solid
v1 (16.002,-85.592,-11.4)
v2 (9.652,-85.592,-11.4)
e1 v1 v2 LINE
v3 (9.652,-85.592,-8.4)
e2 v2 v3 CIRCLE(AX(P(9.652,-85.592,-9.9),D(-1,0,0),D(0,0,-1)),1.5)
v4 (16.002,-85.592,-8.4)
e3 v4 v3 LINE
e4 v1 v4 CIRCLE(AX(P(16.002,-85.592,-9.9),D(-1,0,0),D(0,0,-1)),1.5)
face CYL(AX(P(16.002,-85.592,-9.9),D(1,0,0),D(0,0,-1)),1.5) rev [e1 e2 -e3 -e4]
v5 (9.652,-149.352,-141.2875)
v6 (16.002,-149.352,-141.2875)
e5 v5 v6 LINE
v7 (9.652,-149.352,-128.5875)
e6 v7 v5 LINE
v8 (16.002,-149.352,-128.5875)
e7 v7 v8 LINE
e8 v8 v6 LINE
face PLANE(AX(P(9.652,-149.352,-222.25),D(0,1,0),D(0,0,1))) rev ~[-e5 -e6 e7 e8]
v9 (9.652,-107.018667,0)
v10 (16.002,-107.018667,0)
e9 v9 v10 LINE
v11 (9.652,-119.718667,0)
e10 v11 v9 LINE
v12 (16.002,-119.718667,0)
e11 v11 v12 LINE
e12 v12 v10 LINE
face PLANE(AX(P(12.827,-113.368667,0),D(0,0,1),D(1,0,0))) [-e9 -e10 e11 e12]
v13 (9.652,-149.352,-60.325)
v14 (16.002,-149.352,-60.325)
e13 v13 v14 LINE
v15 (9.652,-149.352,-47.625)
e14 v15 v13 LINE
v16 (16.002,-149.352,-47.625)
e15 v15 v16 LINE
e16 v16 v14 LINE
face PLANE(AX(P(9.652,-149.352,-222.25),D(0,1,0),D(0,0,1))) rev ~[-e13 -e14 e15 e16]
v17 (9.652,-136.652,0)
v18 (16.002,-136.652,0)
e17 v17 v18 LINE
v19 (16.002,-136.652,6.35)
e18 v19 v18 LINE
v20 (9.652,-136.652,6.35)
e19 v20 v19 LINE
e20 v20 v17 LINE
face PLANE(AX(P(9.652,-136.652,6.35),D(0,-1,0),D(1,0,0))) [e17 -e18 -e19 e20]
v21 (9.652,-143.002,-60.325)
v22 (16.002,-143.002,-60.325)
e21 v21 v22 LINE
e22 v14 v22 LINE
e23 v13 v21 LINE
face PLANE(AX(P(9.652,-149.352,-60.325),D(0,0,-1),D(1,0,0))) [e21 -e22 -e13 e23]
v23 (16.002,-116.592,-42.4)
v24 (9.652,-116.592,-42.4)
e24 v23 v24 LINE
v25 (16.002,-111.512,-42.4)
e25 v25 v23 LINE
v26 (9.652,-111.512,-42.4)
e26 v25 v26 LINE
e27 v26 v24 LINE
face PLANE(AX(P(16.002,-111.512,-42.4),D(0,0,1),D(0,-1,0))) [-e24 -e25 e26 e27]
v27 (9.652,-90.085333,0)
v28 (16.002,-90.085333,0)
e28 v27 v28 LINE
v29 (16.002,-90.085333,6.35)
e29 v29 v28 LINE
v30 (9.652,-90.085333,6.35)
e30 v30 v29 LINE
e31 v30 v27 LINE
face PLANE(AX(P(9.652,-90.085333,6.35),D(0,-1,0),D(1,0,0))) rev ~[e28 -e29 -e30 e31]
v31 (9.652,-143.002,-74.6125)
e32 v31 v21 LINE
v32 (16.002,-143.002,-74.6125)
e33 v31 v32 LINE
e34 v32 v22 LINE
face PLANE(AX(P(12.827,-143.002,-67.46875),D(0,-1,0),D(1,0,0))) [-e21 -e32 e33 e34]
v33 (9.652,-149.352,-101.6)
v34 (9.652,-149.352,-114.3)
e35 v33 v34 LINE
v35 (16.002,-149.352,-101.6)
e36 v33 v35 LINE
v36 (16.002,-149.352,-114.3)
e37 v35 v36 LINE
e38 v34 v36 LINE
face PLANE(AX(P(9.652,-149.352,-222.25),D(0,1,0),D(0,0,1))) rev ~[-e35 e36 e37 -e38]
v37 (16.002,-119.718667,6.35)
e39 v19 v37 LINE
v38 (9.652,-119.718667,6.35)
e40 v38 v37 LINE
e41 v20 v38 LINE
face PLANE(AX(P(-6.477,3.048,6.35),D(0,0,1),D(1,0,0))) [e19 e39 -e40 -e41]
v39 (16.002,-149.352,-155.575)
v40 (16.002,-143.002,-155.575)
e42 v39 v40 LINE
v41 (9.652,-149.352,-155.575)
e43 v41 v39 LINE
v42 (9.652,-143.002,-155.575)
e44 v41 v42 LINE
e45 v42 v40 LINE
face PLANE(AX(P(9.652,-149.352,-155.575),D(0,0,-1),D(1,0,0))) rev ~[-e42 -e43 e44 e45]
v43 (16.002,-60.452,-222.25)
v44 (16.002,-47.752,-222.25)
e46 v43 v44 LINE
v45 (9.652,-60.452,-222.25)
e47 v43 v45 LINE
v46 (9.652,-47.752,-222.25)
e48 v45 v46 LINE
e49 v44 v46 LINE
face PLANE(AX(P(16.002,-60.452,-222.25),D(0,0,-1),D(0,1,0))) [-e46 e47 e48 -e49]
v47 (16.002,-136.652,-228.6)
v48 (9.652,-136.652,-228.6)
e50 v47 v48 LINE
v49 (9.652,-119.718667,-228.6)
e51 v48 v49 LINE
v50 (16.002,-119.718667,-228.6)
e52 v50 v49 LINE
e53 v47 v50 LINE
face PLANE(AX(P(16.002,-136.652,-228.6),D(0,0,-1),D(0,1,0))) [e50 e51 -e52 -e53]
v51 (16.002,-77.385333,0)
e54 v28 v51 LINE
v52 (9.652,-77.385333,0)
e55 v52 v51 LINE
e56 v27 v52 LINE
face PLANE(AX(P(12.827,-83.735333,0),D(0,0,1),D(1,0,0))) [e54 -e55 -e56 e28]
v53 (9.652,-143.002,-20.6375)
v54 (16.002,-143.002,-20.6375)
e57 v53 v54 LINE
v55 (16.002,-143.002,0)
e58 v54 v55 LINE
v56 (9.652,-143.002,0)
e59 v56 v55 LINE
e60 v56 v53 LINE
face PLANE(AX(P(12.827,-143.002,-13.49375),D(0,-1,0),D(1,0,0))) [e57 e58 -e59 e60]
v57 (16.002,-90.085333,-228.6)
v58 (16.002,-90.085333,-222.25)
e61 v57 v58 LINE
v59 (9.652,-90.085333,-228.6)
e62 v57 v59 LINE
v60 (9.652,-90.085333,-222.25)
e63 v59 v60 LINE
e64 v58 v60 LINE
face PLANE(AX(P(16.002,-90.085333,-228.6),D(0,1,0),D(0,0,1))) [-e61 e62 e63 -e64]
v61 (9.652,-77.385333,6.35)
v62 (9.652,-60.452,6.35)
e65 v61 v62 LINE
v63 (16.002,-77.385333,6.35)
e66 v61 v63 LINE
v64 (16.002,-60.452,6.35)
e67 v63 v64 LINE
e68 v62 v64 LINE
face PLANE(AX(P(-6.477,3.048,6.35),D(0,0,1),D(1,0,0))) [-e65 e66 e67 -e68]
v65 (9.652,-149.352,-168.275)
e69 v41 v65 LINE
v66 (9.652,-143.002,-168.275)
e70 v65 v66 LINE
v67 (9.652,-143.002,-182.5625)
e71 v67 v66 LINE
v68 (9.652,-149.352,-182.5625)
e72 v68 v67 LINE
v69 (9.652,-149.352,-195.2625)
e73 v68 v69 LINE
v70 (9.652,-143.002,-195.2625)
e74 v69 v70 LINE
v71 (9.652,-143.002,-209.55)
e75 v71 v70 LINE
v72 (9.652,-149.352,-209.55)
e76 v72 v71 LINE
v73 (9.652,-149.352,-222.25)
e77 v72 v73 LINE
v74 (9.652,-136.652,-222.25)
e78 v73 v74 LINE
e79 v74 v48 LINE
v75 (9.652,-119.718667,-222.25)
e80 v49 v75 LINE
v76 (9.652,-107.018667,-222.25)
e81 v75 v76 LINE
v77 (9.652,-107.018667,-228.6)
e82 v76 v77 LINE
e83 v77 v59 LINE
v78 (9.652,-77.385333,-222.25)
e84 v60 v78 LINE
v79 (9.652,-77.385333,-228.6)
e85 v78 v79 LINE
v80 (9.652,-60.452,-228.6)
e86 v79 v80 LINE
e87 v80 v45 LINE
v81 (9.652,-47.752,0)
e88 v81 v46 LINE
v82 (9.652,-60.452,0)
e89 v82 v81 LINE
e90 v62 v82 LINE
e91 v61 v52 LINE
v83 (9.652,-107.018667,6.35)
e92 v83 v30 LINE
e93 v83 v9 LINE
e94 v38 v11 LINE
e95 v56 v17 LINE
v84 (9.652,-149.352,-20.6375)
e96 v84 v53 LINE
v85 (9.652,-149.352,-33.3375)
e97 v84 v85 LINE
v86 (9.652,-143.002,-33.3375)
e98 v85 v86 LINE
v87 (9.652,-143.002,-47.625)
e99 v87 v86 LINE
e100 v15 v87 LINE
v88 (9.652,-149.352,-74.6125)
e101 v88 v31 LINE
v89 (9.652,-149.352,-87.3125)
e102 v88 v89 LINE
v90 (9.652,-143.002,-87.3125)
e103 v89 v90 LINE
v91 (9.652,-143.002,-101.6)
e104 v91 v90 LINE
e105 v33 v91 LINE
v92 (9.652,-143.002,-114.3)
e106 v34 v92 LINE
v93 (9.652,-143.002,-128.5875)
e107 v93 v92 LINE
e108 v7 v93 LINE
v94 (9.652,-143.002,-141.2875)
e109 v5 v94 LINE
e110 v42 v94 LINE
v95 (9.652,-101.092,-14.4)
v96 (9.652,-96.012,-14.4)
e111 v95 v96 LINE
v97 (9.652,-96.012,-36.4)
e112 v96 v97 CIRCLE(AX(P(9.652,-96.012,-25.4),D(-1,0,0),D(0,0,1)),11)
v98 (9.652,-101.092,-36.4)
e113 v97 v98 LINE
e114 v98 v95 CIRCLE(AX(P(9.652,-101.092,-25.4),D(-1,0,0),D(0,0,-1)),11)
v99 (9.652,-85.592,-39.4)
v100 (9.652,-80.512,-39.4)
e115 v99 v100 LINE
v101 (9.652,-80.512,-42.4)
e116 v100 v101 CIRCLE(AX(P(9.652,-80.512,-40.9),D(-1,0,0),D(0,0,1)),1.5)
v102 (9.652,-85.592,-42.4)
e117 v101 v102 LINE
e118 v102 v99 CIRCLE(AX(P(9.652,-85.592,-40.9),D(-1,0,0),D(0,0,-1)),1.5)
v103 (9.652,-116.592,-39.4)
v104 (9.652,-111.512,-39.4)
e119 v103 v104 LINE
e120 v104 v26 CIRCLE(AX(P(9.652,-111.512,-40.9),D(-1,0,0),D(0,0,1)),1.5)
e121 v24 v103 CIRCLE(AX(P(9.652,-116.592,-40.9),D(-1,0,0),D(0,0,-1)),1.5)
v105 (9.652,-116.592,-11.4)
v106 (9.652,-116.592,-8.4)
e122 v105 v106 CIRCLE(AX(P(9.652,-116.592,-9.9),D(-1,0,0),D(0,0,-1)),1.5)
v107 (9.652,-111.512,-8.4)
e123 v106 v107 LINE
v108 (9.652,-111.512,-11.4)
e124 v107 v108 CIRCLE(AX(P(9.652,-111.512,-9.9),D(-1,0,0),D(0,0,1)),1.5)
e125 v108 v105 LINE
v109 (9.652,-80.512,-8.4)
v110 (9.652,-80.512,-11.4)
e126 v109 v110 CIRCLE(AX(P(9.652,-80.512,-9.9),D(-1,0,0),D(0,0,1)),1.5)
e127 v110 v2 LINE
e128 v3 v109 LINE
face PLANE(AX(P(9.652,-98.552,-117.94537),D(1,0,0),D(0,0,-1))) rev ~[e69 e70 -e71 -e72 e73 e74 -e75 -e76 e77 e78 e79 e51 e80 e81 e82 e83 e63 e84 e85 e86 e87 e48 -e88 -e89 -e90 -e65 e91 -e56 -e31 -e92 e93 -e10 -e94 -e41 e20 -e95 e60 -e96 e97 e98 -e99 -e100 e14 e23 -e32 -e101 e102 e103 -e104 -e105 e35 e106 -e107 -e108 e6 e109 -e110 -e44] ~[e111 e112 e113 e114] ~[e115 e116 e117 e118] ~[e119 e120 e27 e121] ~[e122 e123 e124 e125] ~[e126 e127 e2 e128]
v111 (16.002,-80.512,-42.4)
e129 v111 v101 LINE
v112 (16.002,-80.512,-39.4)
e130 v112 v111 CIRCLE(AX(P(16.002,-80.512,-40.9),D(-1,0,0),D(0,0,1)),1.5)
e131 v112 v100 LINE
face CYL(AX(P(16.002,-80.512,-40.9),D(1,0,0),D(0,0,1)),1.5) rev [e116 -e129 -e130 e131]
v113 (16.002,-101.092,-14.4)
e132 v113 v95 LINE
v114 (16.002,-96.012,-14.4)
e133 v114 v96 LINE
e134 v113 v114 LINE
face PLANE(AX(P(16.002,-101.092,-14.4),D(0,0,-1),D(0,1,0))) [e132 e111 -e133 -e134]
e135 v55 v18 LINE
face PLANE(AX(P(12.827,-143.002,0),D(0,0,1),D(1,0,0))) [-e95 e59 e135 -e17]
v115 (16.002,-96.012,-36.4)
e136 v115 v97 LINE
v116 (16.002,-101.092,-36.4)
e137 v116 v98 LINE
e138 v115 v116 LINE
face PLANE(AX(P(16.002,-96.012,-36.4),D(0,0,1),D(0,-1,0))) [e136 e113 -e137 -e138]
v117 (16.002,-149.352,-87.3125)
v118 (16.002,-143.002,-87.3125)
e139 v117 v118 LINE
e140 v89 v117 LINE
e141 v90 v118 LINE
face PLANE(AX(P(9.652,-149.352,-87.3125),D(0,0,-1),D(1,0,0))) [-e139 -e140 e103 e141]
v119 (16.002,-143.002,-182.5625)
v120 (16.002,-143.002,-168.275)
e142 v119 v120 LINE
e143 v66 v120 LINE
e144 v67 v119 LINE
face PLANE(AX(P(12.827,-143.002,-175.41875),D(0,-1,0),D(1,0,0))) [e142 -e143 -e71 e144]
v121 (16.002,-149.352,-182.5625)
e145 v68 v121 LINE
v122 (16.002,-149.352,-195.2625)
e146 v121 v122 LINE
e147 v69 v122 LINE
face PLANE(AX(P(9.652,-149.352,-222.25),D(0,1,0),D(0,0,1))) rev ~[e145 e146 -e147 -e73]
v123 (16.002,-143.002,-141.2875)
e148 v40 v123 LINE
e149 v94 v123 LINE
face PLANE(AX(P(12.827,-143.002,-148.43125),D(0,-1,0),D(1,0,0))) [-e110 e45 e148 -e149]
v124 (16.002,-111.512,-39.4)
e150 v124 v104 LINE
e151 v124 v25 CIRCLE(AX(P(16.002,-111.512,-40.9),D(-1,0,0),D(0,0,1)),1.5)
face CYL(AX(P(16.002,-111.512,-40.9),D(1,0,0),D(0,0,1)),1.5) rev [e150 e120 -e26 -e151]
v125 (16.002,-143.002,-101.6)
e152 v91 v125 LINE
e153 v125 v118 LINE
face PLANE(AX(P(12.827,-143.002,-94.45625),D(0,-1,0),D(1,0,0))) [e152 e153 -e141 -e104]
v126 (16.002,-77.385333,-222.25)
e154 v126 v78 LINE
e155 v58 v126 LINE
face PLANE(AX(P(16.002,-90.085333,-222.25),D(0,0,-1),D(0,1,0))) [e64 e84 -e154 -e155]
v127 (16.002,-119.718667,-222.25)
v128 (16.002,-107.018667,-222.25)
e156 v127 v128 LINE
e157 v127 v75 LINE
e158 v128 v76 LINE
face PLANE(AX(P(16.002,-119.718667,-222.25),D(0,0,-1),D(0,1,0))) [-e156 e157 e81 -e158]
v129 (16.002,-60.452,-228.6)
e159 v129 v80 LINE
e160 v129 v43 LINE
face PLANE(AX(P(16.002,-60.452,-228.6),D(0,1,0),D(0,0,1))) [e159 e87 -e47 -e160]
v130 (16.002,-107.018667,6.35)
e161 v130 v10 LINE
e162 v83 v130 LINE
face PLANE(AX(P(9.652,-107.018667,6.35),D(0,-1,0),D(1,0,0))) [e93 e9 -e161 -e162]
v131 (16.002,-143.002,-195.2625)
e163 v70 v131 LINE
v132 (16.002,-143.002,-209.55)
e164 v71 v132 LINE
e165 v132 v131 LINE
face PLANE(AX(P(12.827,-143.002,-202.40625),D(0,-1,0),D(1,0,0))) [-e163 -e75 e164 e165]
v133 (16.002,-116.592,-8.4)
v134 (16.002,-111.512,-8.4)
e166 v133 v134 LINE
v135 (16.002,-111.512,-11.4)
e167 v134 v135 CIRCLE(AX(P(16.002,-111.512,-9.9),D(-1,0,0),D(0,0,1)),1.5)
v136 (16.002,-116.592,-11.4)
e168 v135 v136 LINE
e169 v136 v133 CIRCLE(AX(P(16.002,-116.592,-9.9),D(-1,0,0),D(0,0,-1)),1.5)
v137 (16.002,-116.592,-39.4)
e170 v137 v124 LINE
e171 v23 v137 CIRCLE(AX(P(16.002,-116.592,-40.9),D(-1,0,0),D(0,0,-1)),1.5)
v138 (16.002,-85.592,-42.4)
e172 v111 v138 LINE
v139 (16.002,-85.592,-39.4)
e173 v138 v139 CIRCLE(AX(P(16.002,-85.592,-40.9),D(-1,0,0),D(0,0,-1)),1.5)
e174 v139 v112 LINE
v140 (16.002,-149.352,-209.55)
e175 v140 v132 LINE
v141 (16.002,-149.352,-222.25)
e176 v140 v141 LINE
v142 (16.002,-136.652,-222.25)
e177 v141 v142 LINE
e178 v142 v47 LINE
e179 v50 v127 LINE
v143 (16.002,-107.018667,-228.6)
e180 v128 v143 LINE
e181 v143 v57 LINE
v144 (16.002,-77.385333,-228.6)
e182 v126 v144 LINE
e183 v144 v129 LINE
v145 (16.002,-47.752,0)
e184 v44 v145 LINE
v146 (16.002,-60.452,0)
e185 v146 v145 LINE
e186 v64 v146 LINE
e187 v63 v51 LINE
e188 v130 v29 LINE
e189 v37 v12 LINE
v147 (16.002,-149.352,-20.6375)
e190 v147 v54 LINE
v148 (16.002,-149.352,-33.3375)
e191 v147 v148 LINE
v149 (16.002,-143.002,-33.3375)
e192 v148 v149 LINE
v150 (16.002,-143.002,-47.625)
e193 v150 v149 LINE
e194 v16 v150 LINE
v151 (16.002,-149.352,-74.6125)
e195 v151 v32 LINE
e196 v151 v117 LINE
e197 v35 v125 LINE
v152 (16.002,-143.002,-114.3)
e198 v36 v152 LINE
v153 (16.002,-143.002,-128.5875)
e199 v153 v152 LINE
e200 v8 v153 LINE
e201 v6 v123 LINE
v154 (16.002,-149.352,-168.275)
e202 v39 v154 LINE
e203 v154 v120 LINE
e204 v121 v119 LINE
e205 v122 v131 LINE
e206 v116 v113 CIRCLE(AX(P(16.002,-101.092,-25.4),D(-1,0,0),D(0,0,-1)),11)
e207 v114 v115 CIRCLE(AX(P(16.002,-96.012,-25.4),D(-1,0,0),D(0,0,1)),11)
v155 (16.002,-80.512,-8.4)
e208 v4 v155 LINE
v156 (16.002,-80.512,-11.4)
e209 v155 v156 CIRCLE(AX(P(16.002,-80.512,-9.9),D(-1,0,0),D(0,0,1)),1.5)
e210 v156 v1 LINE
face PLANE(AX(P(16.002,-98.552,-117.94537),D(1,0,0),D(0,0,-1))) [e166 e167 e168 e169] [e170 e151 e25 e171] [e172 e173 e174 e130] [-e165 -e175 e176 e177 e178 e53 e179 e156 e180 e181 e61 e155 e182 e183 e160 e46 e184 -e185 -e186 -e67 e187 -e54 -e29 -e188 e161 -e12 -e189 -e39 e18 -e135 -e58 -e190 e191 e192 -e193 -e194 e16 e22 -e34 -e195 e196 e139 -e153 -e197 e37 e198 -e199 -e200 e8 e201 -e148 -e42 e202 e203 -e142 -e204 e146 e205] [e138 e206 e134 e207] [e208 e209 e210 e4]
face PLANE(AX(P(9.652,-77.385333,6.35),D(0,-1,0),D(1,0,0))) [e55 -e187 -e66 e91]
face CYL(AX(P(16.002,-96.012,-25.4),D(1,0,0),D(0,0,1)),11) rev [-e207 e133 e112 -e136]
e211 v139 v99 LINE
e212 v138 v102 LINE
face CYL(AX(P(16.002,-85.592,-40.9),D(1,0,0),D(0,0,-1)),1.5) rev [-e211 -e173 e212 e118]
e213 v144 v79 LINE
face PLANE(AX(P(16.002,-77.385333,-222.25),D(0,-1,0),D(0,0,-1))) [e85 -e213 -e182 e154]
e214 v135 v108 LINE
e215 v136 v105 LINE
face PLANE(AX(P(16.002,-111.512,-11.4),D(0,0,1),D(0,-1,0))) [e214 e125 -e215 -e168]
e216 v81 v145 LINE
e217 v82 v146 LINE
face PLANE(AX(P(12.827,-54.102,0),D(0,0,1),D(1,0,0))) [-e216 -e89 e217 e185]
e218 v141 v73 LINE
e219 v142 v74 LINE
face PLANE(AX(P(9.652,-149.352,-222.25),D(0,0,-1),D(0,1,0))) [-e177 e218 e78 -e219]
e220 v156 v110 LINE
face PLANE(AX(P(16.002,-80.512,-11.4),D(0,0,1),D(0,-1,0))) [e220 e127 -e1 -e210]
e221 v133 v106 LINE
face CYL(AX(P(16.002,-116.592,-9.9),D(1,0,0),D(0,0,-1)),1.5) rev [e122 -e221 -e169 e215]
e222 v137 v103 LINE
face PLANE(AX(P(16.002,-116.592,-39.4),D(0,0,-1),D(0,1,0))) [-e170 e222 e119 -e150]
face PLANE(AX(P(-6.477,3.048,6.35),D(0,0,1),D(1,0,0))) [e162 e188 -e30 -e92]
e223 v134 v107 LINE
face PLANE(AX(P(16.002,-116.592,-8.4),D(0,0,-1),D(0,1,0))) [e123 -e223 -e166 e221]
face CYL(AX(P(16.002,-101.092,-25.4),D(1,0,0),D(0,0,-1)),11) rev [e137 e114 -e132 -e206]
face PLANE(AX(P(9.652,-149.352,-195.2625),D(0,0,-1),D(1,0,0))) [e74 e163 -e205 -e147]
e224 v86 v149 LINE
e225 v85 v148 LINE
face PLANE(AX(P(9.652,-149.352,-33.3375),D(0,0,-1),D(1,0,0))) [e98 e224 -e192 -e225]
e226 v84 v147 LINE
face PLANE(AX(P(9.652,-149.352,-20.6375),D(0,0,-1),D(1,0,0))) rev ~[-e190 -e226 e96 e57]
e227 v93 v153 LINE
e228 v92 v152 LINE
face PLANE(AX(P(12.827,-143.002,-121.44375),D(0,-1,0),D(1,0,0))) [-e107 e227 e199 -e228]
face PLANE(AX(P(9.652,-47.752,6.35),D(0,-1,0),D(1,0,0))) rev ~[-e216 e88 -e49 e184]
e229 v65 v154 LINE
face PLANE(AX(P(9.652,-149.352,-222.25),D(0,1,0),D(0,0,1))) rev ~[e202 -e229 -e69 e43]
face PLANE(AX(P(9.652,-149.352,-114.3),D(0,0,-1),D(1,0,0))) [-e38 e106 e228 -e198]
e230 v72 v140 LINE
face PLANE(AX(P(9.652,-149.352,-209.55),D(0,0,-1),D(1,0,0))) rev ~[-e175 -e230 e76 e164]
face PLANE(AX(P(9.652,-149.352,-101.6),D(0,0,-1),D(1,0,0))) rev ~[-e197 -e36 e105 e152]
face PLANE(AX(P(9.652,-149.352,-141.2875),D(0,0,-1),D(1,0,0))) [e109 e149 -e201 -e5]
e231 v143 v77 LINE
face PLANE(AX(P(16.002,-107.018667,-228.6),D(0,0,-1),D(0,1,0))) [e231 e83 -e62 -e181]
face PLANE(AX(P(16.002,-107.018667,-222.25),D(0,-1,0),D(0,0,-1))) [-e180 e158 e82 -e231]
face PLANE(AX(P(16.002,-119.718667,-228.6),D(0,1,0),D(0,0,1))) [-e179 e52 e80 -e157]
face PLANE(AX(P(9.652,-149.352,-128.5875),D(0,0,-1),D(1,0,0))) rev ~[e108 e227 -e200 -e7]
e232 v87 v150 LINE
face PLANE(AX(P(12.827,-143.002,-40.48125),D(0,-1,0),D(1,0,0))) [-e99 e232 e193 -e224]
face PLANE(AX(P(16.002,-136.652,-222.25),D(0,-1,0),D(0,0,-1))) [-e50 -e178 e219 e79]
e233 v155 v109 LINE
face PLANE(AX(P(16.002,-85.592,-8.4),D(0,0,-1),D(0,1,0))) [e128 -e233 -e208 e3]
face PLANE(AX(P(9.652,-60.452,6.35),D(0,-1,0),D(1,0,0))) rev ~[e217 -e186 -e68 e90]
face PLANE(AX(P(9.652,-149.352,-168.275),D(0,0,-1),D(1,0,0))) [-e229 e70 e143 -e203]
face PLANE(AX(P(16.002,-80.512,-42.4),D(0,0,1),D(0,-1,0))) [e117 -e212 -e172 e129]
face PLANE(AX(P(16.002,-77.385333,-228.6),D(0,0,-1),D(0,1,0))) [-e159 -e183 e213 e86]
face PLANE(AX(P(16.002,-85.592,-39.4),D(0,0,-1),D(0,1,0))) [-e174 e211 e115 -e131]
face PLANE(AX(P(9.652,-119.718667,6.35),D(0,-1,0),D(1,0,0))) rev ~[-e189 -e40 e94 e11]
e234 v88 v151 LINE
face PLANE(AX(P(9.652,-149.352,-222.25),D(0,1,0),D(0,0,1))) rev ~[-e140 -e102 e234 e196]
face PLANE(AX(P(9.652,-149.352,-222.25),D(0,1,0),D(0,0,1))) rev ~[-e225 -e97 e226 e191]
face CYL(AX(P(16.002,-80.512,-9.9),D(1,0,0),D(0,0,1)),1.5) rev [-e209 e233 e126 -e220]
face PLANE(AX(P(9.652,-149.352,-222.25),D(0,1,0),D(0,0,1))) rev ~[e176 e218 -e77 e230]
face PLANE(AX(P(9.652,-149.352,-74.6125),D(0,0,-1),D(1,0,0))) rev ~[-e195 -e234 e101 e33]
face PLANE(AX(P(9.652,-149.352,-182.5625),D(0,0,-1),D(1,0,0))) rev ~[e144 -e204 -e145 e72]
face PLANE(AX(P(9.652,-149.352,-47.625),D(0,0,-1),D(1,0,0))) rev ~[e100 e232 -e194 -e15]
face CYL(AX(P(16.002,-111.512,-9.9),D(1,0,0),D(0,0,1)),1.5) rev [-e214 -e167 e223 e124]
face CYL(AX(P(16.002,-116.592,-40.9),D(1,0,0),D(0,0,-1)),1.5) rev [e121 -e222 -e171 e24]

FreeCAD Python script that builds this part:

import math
import FreeCAD as App
import Part
import Sketcher
from FreeCAD import Vector
Q = App.Units.Quantity


def add_polygon(sketch, points):
    """Adds a closed chain of lines whose ends are joined by coincident constraints."""
    first, n = sketch.GeometryCount, len(points)
    for a, b in zip(points, points[1:] + points[:1]):
        sketch.addGeometry(Part.LineSegment(App.Vector(*a, 0), App.Vector(*b, 0)), False)
    for i in range(n):
        sketch.addConstraint(Sketcher.Constraint("Coincident", first + i, 2, first + (i + 1) % n, 1))

doc = App.newDocument("Part")
body = doc.addObject("PartDesign::Body", "Body")

sketch1 = body.newObject("Sketcher::SketchObject", "Sketch")
sketch1.AttachmentSupport = (doc.getObject("XY_Plane"), [""])
sketch1.MapMode = "FlatFace"
add_polygon(sketch1, [(-28.956, 155.448), (-28.956, -149.352), (16.002, -149.352), (16.002, 155.448)])
sketch1.addGeometry(Part.LineSegment(Vector(-3.302, -143.002, 0), Vector(-3.302, 133.858, 0)), False)
sketch1.addGeometry(Part.ArcOfCircle(Part.Circle(Vector(-5.842, 133.858, 0), Vector(0, 0, 1), 2.54), math.radians(0), math.radians(90)), False)
sketch1.addGeometry(Part.LineSegment(Vector(-5.842, 136.398, 0), Vector(-16.256, 136.398, 0)), False)
sketch1.addGeometry(Part.LineSegment(Vector(-16.256, 136.398, 0), Vector(-16.256, 143.002, 0)), False)
sketch1.addGeometry(Part.LineSegment(Vector(-16.256, 143.002, 0), Vector(3.302, 143.002, 0)), False)
sketch1.addGeometry(Part.LineSegment(Vector(3.302, 143.002, 0), Vector(3.302, -143.002, 0)), False)
sketch1.addGeometry(Part.LineSegment(Vector(3.302, -143.002, 0), Vector(-3.302, -143.002, 0)), False)
sketch1.addConstraint([
    Sketcher.Constraint("Tangent", 4, 2, 5, 1),
    Sketcher.Constraint("Tangent", 5, 2, 6, 1),
    Sketcher.Constraint("Coincident", 6, 2, 7, 1),
    Sketcher.Constraint("Coincident", 7, 2, 8, 1),
    Sketcher.Constraint("Coincident", 8, 2, 9, 1),
    Sketcher.Constraint("Coincident", 9, 2, 10, 1),
    Sketcher.Constraint("Coincident", 10, 2, 4, 1),
    Sketcher.Constraint("Vertical", 0),
    Sketcher.Constraint("Horizontal", 1),
    Sketcher.Constraint("Vertical", 2),
    Sketcher.Constraint("Horizontal", 3),
    Sketcher.Constraint("Vertical", 4),
    Sketcher.Constraint("Horizontal", 6),
    Sketcher.Constraint("Vertical", 7),
    Sketcher.Constraint("Horizontal", 8),
    Sketcher.Constraint("Vertical", 9),
    Sketcher.Constraint("Horizontal", 10),
    Sketcher.Constraint("Symmetric", 8, 2, 10, 2, -1, 1),
    Sketcher.Constraint("Equal", 10, 7),
    Sketcher.Constraint("Radius", 5, Q("0.1 in")),
    Sketcher.Constraint("DistanceY", 0, 2, 0, 1, Q("12 in")),
    Sketcher.Constraint("DistanceY", 4, 1, 4, 2, Q("10.9 in")),
    Sketcher.Constraint("DistanceX", 1, 1, 1, 2, Q("1.77 in")),
    Sketcher.Constraint("DistanceX", 6, 2, 6, 1, Q("0.41 in")),
    Sketcher.Constraint("DistanceX", 8, 1, 8, 2, Q("0.77 in")),
    Sketcher.Constraint("DistanceX", 3, 2, 6, 2, Q("0.5 in")),
    Sketcher.Constraint("DistanceY", 0, 2, -1, 1, Q("5.88 in")),
])
pad1 = body.newObject("PartDesign::Pad", "Pad")
pad1.Profile = sketch1
pad1.Length = Q("0.25 in")

sketch2 = body.newObject("Sketcher::SketchObject", "Sketch001")
sketch2.AttachmentSupport = (doc.getObject("YZ_Plane"), [""])
sketch2.MapMode = "FlatFace"
sketch2.AttachmentOffset = App.Placement(Vector(0, 0, 0.63 * 25.4), App.Rotation())
add_polygon(sketch2, [(-60.452, -222.25), (-47.752, -222.25), (-47.752, 6.35), (-149.352, 6.35), (-149.352, -222.25), (-136.652, -222.25), (-136.652, -228.6), (-119.718667, -228.6), (-119.718667, -222.25), (-107.018667, -222.25), (-107.018667, -228.6), (-90.085333, -228.6), (-90.085333, -222.25), (-77.385333, -222.25), (-77.385333, -228.6), (-60.452, -228.6)])
sketch2.addGeometry(Part.LineSegment(Vector(-111.512, -11.4, 0), Vector(-116.592, -11.4, 0)), False)
sketch2.addGeometry(Part.ArcOfCircle(Part.Circle(Vector(-116.592, -9.9, 0), Vector(0, 0, 1), 1.5), math.radians(90), math.radians(270)), False)
sketch2.addGeometry(Part.LineSegment(Vector(-116.592, -8.4, 0), Vector(-111.512, -8.4, 0)), False)
sketch2.addGeometry(Part.ArcOfCircle(Part.Circle(Vector(-111.512, -9.9, 0), Vector(0, 0, 1), 1.5), math.radians(-90), math.radians(90)), False)
sketch2.addGeometry(Part.ArcOfCircle(Part.Circle(Vector(-111.512, -40.9, 0), Vector(0, 0, 1), 1.5), math.radians(-90), math.radians(90)), False)
sketch2.addGeometry(Part.LineSegment(Vector(-111.512, -42.4, 0), Vector(-116.592, -42.4, 0)), False)
sketch2.addGeometry(Part.ArcOfCircle(Part.Circle(Vector(-116.592, -40.9, 0), Vector(0, 0, 1), 1.5), math.radians(90), math.radians(270)), False)
sketch2.addGeometry(Part.LineSegment(Vector(-116.592, -39.4, 0), Vector(-111.512, -39.4, 0)), False)
sketch2.addGeometry(Part.LineSegment(Vector(-96.012, -36.4, 0), Vector(-101.092, -36.4, 0)), False)
sketch2.addGeometry(Part.ArcOfCircle(Part.Circle(Vector(-101.092, -25.4, 0), Vector(0, 0, 1), 11), math.radians(90), math.radians(270)), False)
sketch2.addGeometry(Part.LineSegment(Vector(-101.092, -14.4, 0), Vector(-96.012, -14.4, 0)), False)
sketch2.addGeometry(Part.ArcOfCircle(Part.Circle(Vector(-96.012, -25.4, 0), Vector(0, 0, 1), 11), math.radians(-90), math.radians(90)), False)
sketch2.addGeometry(Part.LineSegment(Vector(-80.512, -11.4, 0), Vector(-85.592, -11.4, 0)), False)
sketch2.addGeometry(Part.ArcOfCircle(Part.Circle(Vector(-85.592, -9.9, 0), Vector(0, 0, 1), 1.5), math.radians(90), math.radians(270)), False)
sketch2.addGeometry(Part.LineSegment(Vector(-85.592, -8.4, 0), Vector(-80.512, -8.4, 0)), False)
sketch2.addGeometry(Part.ArcOfCircle(Part.Circle(Vector(-80.512, -9.9, 0), Vector(0, 0, 1), 1.5), math.radians(-90), math.radians(90)), False)
sketch2.addGeometry(Part.LineSegment(Vector(-80.512, -42.4, 0), Vector(-85.592, -42.4, 0)), False)
sketch2.addGeometry(Part.ArcOfCircle(Part.Circle(Vector(-85.592, -40.9, 0), Vector(0, 0, 1), 1.5), math.radians(90), math.radians(270)), False)
sketch2.addGeometry(Part.LineSegment(Vector(-85.592, -39.4, 0), Vector(-80.512, -39.4, 0)), False)
sketch2.addGeometry(Part.ArcOfCircle(Part.Circle(Vector(-80.512, -40.9, 0), Vector(0, 0, 1), 1.5), math.radians(-90), math.radians(90)), False)
sketch2.addConstraint([
    Sketcher.Constraint("Tangent", 16, 2, 17, 2),
    Sketcher.Constraint("Tangent", 17, 1, 18, 1),
    Sketcher.Constraint("Tangent", 18, 2, 19, 2),
    Sketcher.Constraint("Tangent", 19, 1, 16, 1),
    Sketcher.Constraint("Tangent", 20, 1, 21, 1),
    Sketcher.Constraint("Tangent", 21, 2, 22, 2),
    Sketcher.Constraint("Tangent", 22, 1, 23, 1),
    Sketcher.Constraint("Tangent", 23, 2, 20, 2),
    Sketcher.Constraint("Tangent", 24, 2, 25, 2),
    Sketcher.Constraint("Tangent", 25, 1, 26, 1),
    Sketcher.Constraint("Tangent", 26, 2, 27, 2),
    Sketcher.Constraint("Tangent", 27, 1, 24, 1),
    Sketcher.Constraint("Tangent", 28, 2, 29, 2),
    Sketcher.Constraint("Tangent", 29, 1, 30, 1),
    Sketcher.Constraint("Tangent", 30, 2, 31, 2),
    Sketcher.Constraint("Tangent", 31, 1, 28, 1),
    Sketcher.Constraint("Tangent", 32, 2, 33, 2),
    Sketcher.Constraint("Tangent", 33, 1, 34, 1),
    Sketcher.Constraint("Tangent", 34, 2, 35, 2),
    Sketcher.Constraint("Tangent", 35, 1, 32, 1),
    Sketcher.Constraint("Horizontal", 0),
    Sketcher.Constraint("Vertical", 1),
    Sketcher.Constraint("Horizontal", 2),
    Sketcher.Constraint("Vertical", 3),
    Sketcher.Constraint("Horizontal", 4),
    Sketcher.Constraint("Vertical", 5),
    Sketcher.Constraint("Horizontal", 6),
    Sketcher.Constraint("Vertical", 7),
    Sketcher.Constraint("Horizontal", 8),
    Sketcher.Constraint("Vertical", 9),
    Sketcher.Constraint("Horizontal", 10),
    Sketcher.Constraint("Vertical", 11),
    Sketcher.Constraint("Horizontal", 12),
    Sketcher.Constraint("Vertical", 13),
    Sketcher.Constraint("Horizontal", 14),
    Sketcher.Constraint("Vertical", 15),
    Sketcher.Constraint("Horizontal", 16),
    Sketcher.Constraint("Horizontal", 18),
    Sketcher.Constraint("Horizontal", 21),
    Sketcher.Constraint("Horizontal", 23),
    Sketcher.Constraint("Horizontal", 24),
    Sketcher.Constraint("Horizontal", 26),
    Sketcher.Constraint("Horizontal", 28),
    Sketcher.Constraint("Horizontal", 30),
    Sketcher.Constraint("Horizontal", 32),
    Sketcher.Constraint("Horizontal", 34),
    Sketcher.Constraint("Equal", 19, 20),
    Sketcher.Constraint("Equal", 22, 29),
    Sketcher.Constraint("Equal", 31, 33),
    Sketcher.Constraint("Horizontal", 19, 3, 29, 3),
    Sketcher.Constraint("Horizontal", 22, 3, 33, 3),
    Sketcher.Constraint("Horizontal", 0, 2, 3, 2),
    Sketcher.Constraint("Horizontal", 4, 2, 7, 2),
    Sketcher.Constraint("Horizontal", 6, 2, 9, 2),
    Sketcher.Constraint("Horizontal", 8, 2, 11, 2),
    Sketcher.Constraint("Horizontal", 10, 2, 13, 2),
    Sketcher.Constraint("Vertical", 19, 3, 20, 3),
    Sketcher.Constraint("Vertical", 17, 3, 22, 3),
    Sketcher.Constraint("Vertical", 29, 3, 33, 3),
    Sketcher.Constraint("Vertical", 31, 3, 35, 3),
    Sketcher.Constraint("Equal", 0, 4),
    Sketcher.Constraint("Equal", 4, 8),
    Sketcher.Constraint("Equal", 6, 10),
    Sketcher.Constraint("Equal", 8, 12),
    Sketcher.Constraint("Equal", 10, 14),
    Sketcher.Constraint("Equal", 23, 24),
    Sketcher.Constraint("Equal", 26, 28),
    Sketcher.Constraint("DistanceX", 2, 2, 2, 1, Q("4 in")),
    Sketcher.Constraint("DistanceY", 1, 1, 1, 2, Q("9 in")),
    Sketcher.Constraint("DistanceX", 0, 1, 0, 2, Q("0.5 in")),
    Sketcher.Constraint("DistanceX", 16, 2, 16, 1, Q("0.2 in")),
    Sketcher.Constraint("DistanceY", 25, 3, -1, 1, Q("1 in")),
    Sketcher.Constraint("DistanceY", 5, 2, -1, 1, Q("9 in")),
    Sketcher.Constraint("DistanceY", 5, 2, 5, 1, Q("0.25 in")),
    Sketcher.Constraint("DistanceX", 27, 3, 0, 2, Q("1.9 in")),
    Sketcher.Constraint("DistanceX", 25, 3, -1, 1, Q("3.98 in")),
    Sketcher.Constraint("Radius", 17, Q("1.5 mm")),
    Sketcher.Constraint("Radius", 25, Q("11 mm")),
    Sketcher.Constraint("DistanceX", 17, 3, -1, 1, Q("116.592 mm")),
    Sketcher.Constraint("DistanceY", 17, 3, -1, 1, Q("9.9 mm")),
    Sketcher.Constraint("DistanceY", 20, 3, -1, 1, Q("40.9 mm")),
    Sketcher.Constraint("DistanceX", 29, 3, -1, 1, Q("85.592 mm")),
])
pad2 = body.newObject("PartDesign::Pad", "Pad001")
pad2.Profile = sketch2
pad2.Length = Q("0.25 in")
pad2.Reversed = True

sketch3 = body.newObject("Sketcher::SketchObject", "Sketch002")
sketch3.AttachmentSupport = (doc.getObject("YZ_Plane"), [""])
sketch3.MapMode = "FlatFace"
sketch3.AttachmentOffset = App.Placement(Vector(0, 0, 0.38 * 25.4), App.Rotation())
add_polygon(sketch3, [(-143.002, -222.25), (-149.352, -222.25), (-149.352, 0), (-143.002, 0)])
sketch3.addConstraint([
    Sketcher.Constraint("Horizontal", 0),
    Sketcher.Constraint("Vertical", 1),
    Sketcher.Constraint("Horizontal", 2),
    Sketcher.Constraint("Vertical", 3),
    Sketcher.Constraint("PointOnObject", 1, 2, -1),
    Sketcher.Constraint("DistanceX", 0, 2, 0, 1, Q("0.25 in")),
    Sketcher.Constraint("DistanceY", 1, 1, 1, 2, Q("8.75 in")),
    Sketcher.Constraint("DistanceX", 0, 2, -1, 1, Q("5.88 in")),
])
pad3 = body.newObject("PartDesign::Pad", "Pad002")
pad3.Profile = sketch3
pad3.Length = Q("1.52 in")
pad3.Reversed = True

sketch4 = body.newObject("Sketcher::SketchObject", "Sketch003")
sketch4.AttachmentSupport = (doc.getObject("XY_Plane"), [""])
sketch4.MapMode = "FlatFace"
sketch4.AttachmentOffset = App.Placement(Vector(0, 0, 0.25 * 25.4), App.Rotation())
add_polygon(sketch4, [(9.652, -149.352), (9.652, -47.752), (16.002, -47.752), (16.002, 165.69935), (-54.223543, 165.69935), (-54.223543, -149.352)])
sketch4.addGeometry(Part.LineSegment(Vector(-5.842, 136.398, 0), Vector(-16.256, 136.398, 0)), False)
sketch4.addGeometry(Part.LineSegment(Vector(-16.256, 136.398, 0), Vector(-16.256, 143.002, 0)), False)
sketch4.addGeometry(Part.LineSegment(Vector(-16.256, 143.002, 0), Vector(3.302, 143.002, 0)), False)
sketch4.addGeometry(Part.LineSegment(Vector(3.302, 143.002, 0), Vector(3.302, -143.002, 0)), False)
sketch4.addGeometry(Part.LineSegment(Vector(3.302, -143.002, 0), Vector(-3.302, -143.002, 0)), False)
sketch4.addGeometry(Part.LineSegment(Vector(-3.302, -143.002, 0), Vector(-3.302, 133.858, 0)), False)
sketch4.addGeometry(Part.ArcOfCircle(Part.Circle(Vector(-5.842, 133.858, 0), Vector(0, 0, 1), 2.54), math.radians(0), math.radians(90)), False)
sketch4.addConstraint([
    Sketcher.Constraint("Coincident", 6, 2, 7, 1),
    Sketcher.Constraint("Coincident", 7, 2, 8, 1),
    Sketcher.Constraint("Coincident", 8, 2, 9, 1),
    Sketcher.Constraint("Coincident", 9, 2, 10, 1),
    Sketcher.Constraint("Coincident", 10, 2, 11, 1),
    Sketcher.Constraint("Tangent", 11, 2, 12, 1),
    Sketcher.Constraint("Tangent", 12, 2, 6, 1),
    Sketcher.Constraint("Vertical", 0),
    Sketcher.Constraint("Horizontal", 1),
    Sketcher.Constraint("Vertical", 2),
    Sketcher.Constraint("Horizontal", 3),
    Sketcher.Constraint("Vertical", 4),
    Sketcher.Constraint("Horizontal", 5),
    Sketcher.Constraint("Horizontal", 6),
    Sketcher.Constraint("Vertical", 7),
    Sketcher.Constraint("Horizontal", 8),
    Sketcher.Constraint("Vertical", 9),
    Sketcher.Constraint("Horizontal", 10),
    Sketcher.Constraint("Vertical", 11),
    Sketcher.Constraint("Symmetric", 8, 2, 10, 2, -1, 1),
    Sketcher.Constraint("Equal", 10, 7),
    Sketcher.Constraint("Radius", 12, Q("0.1 in")),
    Sketcher.Constraint("DistanceY", 0, 1, 0, 2, Q("4 in")),
    Sketcher.Constraint("DistanceY", 11, 1, 11, 2, Q("10.9 in")),
    Sketcher.Constraint("DistanceX", 1, 1, 1, 2, Q("0.25 in")),
    Sketcher.Constraint("DistanceX", 6, 2, 6, 1, Q("0.41 in")),
    Sketcher.Constraint("DistanceX", 8, 1, 8, 2, Q("0.77 in")),
    Sketcher.Constraint("DistanceX", 8, 2, 2, 2, Q("0.5 in")),
    Sketcher.Constraint("DistanceY", 0, 2, -1, 1, Q("1.88 in")),
    Sketcher.Constraint("DistanceY", 2, 1, 2, 2, Q("213.45135 mm")),
    Sketcher.Constraint("DistanceX", 3, 2, 3, 1, Q("70.225543 mm")),
])
pocket1 = body.newObject("PartDesign::Pocket", "Pocket")
pocket1.Profile = sketch4
pocket1.Type = "ThroughAll"
pocket1.Midplane = True

sketch5 = body.newObject("Sketcher::SketchObject", "Sketch004")
sketch5.AttachmentSupport = (doc.getObject("XY_Plane"), [""])
sketch5.MapMode = "FlatFace"
sketch5.AttachmentOffset = App.Placement(Vector(0, 0, 0.25 * 25.4), App.Rotation())
add_polygon(sketch5, [(9.652, -47.752), (9.652, -60.452), (16.002, -60.452), (16.002, -47.752)])
add_polygon(sketch5, [(9.652, -77.385333), (9.652, -90.085333), (16.002, -90.085333), (16.002, -77.385333)])
add_polygon(sketch5, [(9.652, -107.018667), (9.652, -119.718667), (16.002, -119.718667), (16.002, -107.018667)])
add_polygon(sketch5, [(9.652, -136.652), (9.652, -149.352), (16.002, -149.352), (16.002, -136.652)])
sketch5.addConstraint([
    Sketcher.Constraint("Vertical", 0),
    Sketcher.Constraint("Horizontal", 1),
    Sketcher.Constraint("Vertical", 2),
    Sketcher.Constraint("Horizontal", 3),
    Sketcher.Constraint("Vertical", 4),
    Sketcher.Constraint("Horizontal", 5),
    Sketcher.Constraint("Vertical", 6),
    Sketcher.Constraint("Horizontal", 7),
    Sketcher.Constraint("Vertical", 8),
    Sketcher.Constraint("Horizontal", 9),
    Sketcher.Constraint("Vertical", 10),
    Sketcher.Constraint("Horizontal", 11),
    Sketcher.Constraint("Vertical", 12),
    Sketcher.Constraint("Horizontal", 13),
    Sketcher.Constraint("Vertical", 14),
    Sketcher.Constraint("Horizontal", 15),
    Sketcher.Constraint("Vertical", 3, 2, 4, 2),
    Sketcher.Constraint("Vertical", 2, 2, 5, 2),
    Sketcher.Constraint("Vertical", 7, 2, 8, 2),
    Sketcher.Constraint("Vertical", 6, 2, 9, 2),
    Sketcher.Constraint("Vertical", 11, 2, 12, 2),
    Sketcher.Constraint("Vertical", 10, 2, 13, 2),
    Sketcher.Constraint("Equal", 2, 4),
    Sketcher.Constraint("Equal", 6, 8),
    Sketcher.Constraint("Equal", 10, 12),
    Sketcher.Constraint("DistanceY", 0, 2, 0, 1, Q("0.5 in")),
    Sketcher.Constraint("DistanceX", 1, 1, 1, 2, Q("0.25 in")),
    Sketcher.Constraint("DistanceX", -1, 1, 0, 2, Q("0.38 in")),
    Sketcher.Constraint("DistanceY", 0, 2, -1, 1, Q("2.38 in")),
    Sketcher.Constraint("DistanceY", 12, 2, -1, 1, Q("5.88 in")),
    Sketcher.Constraint("DistanceY", 4, 2, -1, 1, Q("90.085333 mm")),
    Sketcher.Constraint("DistanceY", 8, 2, -1, 1, Q("119.718667 mm")),
])
pocket2 = body.newObject("PartDesign::Pocket", "Pocket001")
pocket2.Profile = sketch5
pocket2.Length = Q("0.25 in")

sketch6 = body.newObject("Sketcher::SketchObject", "Sketch005")
sketch6.AttachmentSupport = (doc.getObject("XZ_Plane"), [""])
sketch6.MapMode = "FlatFace"
sketch6.AttachmentOffset = App.Placement(Vector(0, 0, 5.88 * 25.4), App.Rotation())
add_polygon(sketch6, [(9.652, -20.6375), (16.002, -20.6375), (16.002, 6.35), (9.652, 6.35)])
add_polygon(sketch6, [(9.652, -33.3375), (9.652, -47.625), (16.002, -47.625), (16.002, -33.3375)])
add_polygon(sketch6, [(9.652, -60.325), (9.652, -74.6125), (16.002, -74.6125), (16.002, -60.325)])
add_polygon(sketch6, [(9.652, -87.3125), (9.652, -101.6), (16.002, -101.6), (16.002, -87.3125)])
add_polygon(sketch6, [(9.652, -114.3), (9.652, -128.5875), (16.002, -128.5875), (16.002, -114.3)])
add_polygon(sketch6, [(9.652, -141.2875), (9.652, -155.575), (16.002, -155.575), (16.002, -141.2875)])
add_polygon(sketch6, [(9.652, -168.275), (9.652, -182.5625), (16.002, -182.5625), (16.002, -168.275)])
add_polygon(sketch6, [(9.652, -195.2625), (9.652, -209.55), (16.002, -209.55), (16.002, -195.2625)])
sketch6.addConstraint([
    Sketcher.Constraint("Horizontal", 0),
    Sketcher.Constraint("Vertical", 1),
    Sketcher.Constraint("Horizontal", 2),
    Sketcher.Constraint("Vertical", 3),
    Sketcher.Constraint("Vertical", 4),
    Sketcher.Constraint("Horizontal", 5),
    Sketcher.Constraint("Vertical", 6),
    Sketcher.Constraint("Horizontal", 7),
    Sketcher.Constraint("Vertical", 8),
    Sketcher.Constraint("Horizontal", 9),
    Sketcher.Constraint("Vertical", 10),
    Sketcher.Constraint("Horizontal", 11),
    Sketcher.Constraint("Vertical", 12),
    Sketcher.Constraint("Horizontal", 13),
    Sketcher.Constraint("Vertical", 14),
    Sketcher.Constraint("Horizontal", 15),
    Sketcher.Constraint("Vertical", 16),
    Sketcher.Constraint("Horizontal", 17),
    Sketcher.Constraint("Vertical", 18),
    Sketcher.Constraint("Horizontal", 19),
    Sketcher.Constraint("Vertical", 20),
    Sketcher.Constraint("Horizontal", 21),
    Sketcher.Constraint("Vertical", 22),
    Sketcher.Constraint("Horizontal", 23),
    Sketcher.Constraint("Vertical", 24),
    Sketcher.Constraint("Horizontal", 25),
    Sketcher.Constraint("Vertical", 26),
    Sketcher.Constraint("Horizontal", 27),
    Sketcher.Constraint("Vertical", 28),
    Sketcher.Constraint("Horizontal", 29),
    Sketcher.Constraint("Vertical", 30),
    Sketcher.Constraint("Horizontal", 31),
    Sketcher.Constraint("Vertical", 3, 2, 4, 2),
    Sketcher.Constraint("Vertical", 1, 2, 5, 2),
    Sketcher.Constraint("Vertical", 7, 2, 8, 2),
    Sketcher.Constraint("Vertical", 6, 2, 9, 2),
    Sketcher.Constraint("Vertical", 11, 2, 12, 2),
    Sketcher.Constraint("Vertical", 10, 2, 13, 2),
    Sketcher.Constraint("Vertical", 15, 2, 16, 2),
    Sketcher.Constraint("Vertical", 14, 2, 17, 2),
    Sketcher.Constraint("Vertical", 19, 2, 20, 2),
    Sketcher.Constraint("Vertical", 18, 2, 21, 2),
    Sketcher.Constraint("Vertical", 23, 2, 24, 2),
    Sketcher.Constraint("Vertical", 22, 2, 25, 2),
    Sketcher.Constraint("Vertical", 27, 2, 28, 2),
    Sketcher.Constraint("Vertical", 26, 2, 29, 2),
    Sketcher.Constraint("Equal", 6, 8),
    Sketcher.Constraint("Equal", 10, 12),
    Sketcher.Constraint("Equal", 14, 16),
    Sketcher.Constraint("Equal", 18, 20),
    Sketcher.Constraint("Equal", 22, 24),
    Sketcher.Constraint("Equal", 26, 28),
    Sketcher.Constraint("DistanceY", 12, 2, -1, 1, Q("4 in")),
    Sketcher.Constraint("DistanceX", 0, 1, 0, 2, Q("0.25 in")),
    Sketcher.Constraint("DistanceY", 18, 2, -1, 1, Q("4.5 in")),
    Sketcher.Constraint("DistanceY", 6, 2, 0, 2, Q("0.5 in")),
    Sketcher.Constraint("DistanceY", 10, 2, 5, 2, Q("0.5 in")),
    Sketcher.Constraint("DistanceY", 14, 2, 9, 2, Q("0.5 in")),
    Sketcher.Constraint("DistanceY", 22, 2, 17, 2, Q("0.5 in")),
    Sketcher.Constraint("DistanceY", 26, 2, 21, 2, Q("0.5 in")),
    Sketcher.Constraint("DistanceY", 30, 2, 25, 2, Q("0.5 in")),
    Sketcher.Constraint("DistanceY", 1, 1, 1, 2, Q("1.0625 in")),
    Sketcher.Constraint("DistanceY", 4, 2, 4, 1, Q("0.5625 in")),
    Sketcher.Constraint("DistanceX", -1, 1, 0, 2, Q("0.63 in")),
])
pocket3 = body.newObject("PartDesign::Pocket", "Pocket002")
pocket3.Profile = sketch6
pocket3.Length = Q("0.25 in")

doc.recompute()
